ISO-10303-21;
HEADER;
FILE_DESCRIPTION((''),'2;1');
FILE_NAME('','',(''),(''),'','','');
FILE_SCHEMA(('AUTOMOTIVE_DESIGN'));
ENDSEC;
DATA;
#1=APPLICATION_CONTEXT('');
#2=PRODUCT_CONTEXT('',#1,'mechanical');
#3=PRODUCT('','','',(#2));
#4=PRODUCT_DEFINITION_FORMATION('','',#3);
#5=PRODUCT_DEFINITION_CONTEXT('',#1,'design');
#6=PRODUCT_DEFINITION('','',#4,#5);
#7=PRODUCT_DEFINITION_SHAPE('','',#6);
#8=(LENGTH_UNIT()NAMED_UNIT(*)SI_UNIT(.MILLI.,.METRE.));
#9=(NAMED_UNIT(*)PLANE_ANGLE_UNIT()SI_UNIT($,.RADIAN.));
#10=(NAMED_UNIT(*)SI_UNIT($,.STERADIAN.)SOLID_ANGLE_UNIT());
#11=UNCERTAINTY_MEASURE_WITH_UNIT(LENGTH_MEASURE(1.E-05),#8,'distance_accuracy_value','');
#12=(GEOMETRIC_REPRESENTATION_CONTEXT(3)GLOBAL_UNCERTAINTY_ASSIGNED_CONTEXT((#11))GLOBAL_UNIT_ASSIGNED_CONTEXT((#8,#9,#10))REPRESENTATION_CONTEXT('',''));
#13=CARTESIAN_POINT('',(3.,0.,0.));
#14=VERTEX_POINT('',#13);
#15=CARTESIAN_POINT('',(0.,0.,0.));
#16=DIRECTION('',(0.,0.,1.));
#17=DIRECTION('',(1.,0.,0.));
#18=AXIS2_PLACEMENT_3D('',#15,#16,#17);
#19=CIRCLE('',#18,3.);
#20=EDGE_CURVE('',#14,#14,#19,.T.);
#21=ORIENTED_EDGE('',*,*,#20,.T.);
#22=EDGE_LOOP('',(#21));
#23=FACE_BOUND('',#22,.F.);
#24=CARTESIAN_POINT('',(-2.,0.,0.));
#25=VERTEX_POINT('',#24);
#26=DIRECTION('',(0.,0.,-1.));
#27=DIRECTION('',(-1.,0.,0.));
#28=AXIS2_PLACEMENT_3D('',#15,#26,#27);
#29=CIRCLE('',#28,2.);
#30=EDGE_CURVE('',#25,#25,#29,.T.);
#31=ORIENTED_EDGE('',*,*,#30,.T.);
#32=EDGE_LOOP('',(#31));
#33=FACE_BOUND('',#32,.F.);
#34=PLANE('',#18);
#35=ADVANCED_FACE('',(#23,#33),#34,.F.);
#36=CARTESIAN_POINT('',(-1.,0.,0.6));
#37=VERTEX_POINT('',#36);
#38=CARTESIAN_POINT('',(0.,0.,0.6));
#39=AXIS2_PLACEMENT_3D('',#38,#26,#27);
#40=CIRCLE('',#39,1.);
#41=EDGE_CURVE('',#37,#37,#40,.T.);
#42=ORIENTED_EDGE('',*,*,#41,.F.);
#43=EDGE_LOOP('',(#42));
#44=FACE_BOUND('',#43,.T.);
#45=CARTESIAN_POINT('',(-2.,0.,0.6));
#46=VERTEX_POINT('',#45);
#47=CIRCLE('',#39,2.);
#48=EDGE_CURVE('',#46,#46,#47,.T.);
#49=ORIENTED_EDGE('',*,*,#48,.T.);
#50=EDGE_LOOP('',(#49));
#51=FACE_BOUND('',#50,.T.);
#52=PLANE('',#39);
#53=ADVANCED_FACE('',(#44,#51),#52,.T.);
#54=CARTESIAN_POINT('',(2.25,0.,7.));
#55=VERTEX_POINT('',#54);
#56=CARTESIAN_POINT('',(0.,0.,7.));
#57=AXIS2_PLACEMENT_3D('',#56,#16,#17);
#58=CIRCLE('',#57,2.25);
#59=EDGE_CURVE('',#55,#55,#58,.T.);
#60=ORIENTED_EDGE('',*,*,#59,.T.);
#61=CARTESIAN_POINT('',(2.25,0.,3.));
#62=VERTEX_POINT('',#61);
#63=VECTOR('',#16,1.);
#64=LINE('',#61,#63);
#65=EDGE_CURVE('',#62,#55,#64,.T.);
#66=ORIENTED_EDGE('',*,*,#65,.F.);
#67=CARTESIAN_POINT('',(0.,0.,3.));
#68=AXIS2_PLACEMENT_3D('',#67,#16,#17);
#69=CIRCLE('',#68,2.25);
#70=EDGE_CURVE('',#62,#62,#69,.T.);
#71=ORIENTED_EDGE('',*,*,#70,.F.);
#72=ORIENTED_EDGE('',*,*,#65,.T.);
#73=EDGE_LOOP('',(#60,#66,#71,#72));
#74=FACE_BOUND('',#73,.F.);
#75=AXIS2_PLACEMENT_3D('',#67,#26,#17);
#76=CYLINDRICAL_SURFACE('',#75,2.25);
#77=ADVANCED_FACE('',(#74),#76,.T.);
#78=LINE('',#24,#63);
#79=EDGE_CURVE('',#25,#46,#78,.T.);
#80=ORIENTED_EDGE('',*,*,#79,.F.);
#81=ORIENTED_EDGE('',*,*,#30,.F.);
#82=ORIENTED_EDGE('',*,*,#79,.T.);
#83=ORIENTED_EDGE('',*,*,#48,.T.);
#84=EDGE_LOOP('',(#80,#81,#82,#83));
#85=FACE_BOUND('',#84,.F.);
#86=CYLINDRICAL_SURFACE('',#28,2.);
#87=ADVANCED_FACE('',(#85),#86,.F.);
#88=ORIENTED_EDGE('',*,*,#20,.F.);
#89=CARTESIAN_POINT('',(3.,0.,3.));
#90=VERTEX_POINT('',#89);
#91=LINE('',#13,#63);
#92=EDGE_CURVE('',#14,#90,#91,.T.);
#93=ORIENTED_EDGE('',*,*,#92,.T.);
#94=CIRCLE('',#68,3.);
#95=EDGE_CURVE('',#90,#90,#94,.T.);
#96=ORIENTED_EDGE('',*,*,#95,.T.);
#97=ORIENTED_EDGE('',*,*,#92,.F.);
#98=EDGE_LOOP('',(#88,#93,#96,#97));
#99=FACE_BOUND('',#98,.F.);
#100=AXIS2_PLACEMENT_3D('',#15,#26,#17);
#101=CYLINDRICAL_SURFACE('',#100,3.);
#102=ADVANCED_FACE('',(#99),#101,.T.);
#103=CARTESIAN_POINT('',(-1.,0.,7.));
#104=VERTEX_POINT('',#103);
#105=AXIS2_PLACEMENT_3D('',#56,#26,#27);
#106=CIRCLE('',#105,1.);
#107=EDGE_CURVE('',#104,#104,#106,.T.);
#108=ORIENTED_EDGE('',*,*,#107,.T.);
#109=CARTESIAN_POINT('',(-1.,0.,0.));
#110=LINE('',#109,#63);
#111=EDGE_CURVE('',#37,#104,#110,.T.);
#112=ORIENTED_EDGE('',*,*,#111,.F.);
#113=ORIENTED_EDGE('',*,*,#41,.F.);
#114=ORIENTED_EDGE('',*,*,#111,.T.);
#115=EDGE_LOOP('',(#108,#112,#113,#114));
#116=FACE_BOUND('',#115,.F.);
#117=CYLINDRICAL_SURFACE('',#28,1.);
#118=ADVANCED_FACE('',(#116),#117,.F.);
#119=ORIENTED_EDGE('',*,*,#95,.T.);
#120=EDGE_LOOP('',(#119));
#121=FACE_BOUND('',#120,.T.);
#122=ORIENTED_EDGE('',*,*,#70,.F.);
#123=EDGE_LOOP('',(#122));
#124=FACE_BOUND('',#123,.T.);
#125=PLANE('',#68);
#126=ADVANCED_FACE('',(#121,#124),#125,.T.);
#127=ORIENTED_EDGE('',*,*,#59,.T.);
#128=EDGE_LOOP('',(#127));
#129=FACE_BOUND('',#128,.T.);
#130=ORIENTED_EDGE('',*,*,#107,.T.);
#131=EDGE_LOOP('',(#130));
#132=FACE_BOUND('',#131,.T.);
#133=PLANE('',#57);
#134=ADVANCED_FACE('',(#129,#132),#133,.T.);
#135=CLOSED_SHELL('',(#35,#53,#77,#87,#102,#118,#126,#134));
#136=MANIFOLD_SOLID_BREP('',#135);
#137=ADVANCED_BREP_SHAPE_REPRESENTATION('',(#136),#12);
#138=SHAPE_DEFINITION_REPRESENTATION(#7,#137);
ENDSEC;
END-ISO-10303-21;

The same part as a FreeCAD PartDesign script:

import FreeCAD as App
import Part
import Sketcher
from FreeCAD import Vector
Q = App.Units.Quantity

doc = App.newDocument("Part")
body = doc.addObject("PartDesign::Body", "Body")

# Sketch on XY plane
sketch1 = doc.addObject("Sketcher::SketchObject", "Sketch")
body.addObject(sketch1)
sketch1.AttachmentSupport = (doc.XY_Plane, [""])
sketch1.MapMode = "FlatFace"
sketch1.addGeometry(Part.Circle(Vector(0, 0, 0), Vector(0, 0, 1), 3), False)
sketch1.addConstraint(Sketcher.Constraint("Coincident", 0, 3, -1, 1))
sketch1.addConstraint(Sketcher.Constraint("Diameter", 0, Q("6 mm")))
pad1 = doc.addObject("PartDesign::Pad", "Pad")
body.addObject(pad1)
pad1.Profile = sketch1
pad1.Length = 3

# Sketch on XY plane
sketch2 = doc.addObject("Sketcher::SketchObject", "Sketch001")
body.addObject(sketch2)
sketch2.AttachmentSupport = (doc.XY_Plane, [""])
sketch2.MapMode = "FlatFace"
sketch2.AttachmentOffset = App.Placement(Vector(0, 0, 3), App.Rotation())
sketch2.addGeometry(Part.Circle(Vector(0, 0, 0), Vector(0, 0, 1), 2.25), False)
sketch2.addConstraint(Sketcher.Constraint("Coincident", 0, 3, -1, 1))
sketch2.addConstraint(Sketcher.Constraint("Diameter", 0, Q("4.5 mm")))
pad2 = doc.addObject("PartDesign::Pad", "Pad001")
body.addObject(pad2)
pad2.Profile = sketch2
pad2.Length = 4

# Sketch on XY plane
sketch3 = doc.addObject("Sketcher::SketchObject", "Sketch002")
body.addObject(sketch3)
sketch3.AttachmentSupport = (doc.XY_Plane, [""])
sketch3.MapMode = "FlatFace"
sketch3.addGeometry(Part.Circle(Vector(0, 0, 0), Vector(0, 0, 1), 2), False)
sketch3.addConstraint(Sketcher.Constraint("Coincident", 0, 3, -1, 1))
sketch3.addConstraint(Sketcher.Constraint("Diameter", 0, Q("4 mm")))
pocket1 = doc.addObject("PartDesign::Pocket", "Pocket")
body.addObject(pocket1)
pocket1.Profile = sketch3
pocket1.Length = 0.6
pocket1.Reversed = True

# Sketch on XY plane
sketch4 = doc.addObject("Sketcher::SketchObject", "Sketch003")
body.addObject(sketch4)
sketch4.AttachmentSupport = (doc.XY_Plane, [""])
sketch4.MapMode = "FlatFace"
sketch4.addGeometry(Part.Circle(Vector(0, 0, 0), Vector(0, 0, 1), 1), False)
sketch4.addConstraint(Sketcher.Constraint("Coincident", 0, 3, -1, 1))
sketch4.addConstraint(Sketcher.Constraint("Diameter", 0, Q("2 mm")))
pocket2 = doc.addObject("PartDesign::Pocket", "Pocket001")
body.addObject(pocket2)
pocket2.Profile = sketch4
pocket2.Type = "ThroughAll"
pocket2.Reversed = True

doc.recompute()
